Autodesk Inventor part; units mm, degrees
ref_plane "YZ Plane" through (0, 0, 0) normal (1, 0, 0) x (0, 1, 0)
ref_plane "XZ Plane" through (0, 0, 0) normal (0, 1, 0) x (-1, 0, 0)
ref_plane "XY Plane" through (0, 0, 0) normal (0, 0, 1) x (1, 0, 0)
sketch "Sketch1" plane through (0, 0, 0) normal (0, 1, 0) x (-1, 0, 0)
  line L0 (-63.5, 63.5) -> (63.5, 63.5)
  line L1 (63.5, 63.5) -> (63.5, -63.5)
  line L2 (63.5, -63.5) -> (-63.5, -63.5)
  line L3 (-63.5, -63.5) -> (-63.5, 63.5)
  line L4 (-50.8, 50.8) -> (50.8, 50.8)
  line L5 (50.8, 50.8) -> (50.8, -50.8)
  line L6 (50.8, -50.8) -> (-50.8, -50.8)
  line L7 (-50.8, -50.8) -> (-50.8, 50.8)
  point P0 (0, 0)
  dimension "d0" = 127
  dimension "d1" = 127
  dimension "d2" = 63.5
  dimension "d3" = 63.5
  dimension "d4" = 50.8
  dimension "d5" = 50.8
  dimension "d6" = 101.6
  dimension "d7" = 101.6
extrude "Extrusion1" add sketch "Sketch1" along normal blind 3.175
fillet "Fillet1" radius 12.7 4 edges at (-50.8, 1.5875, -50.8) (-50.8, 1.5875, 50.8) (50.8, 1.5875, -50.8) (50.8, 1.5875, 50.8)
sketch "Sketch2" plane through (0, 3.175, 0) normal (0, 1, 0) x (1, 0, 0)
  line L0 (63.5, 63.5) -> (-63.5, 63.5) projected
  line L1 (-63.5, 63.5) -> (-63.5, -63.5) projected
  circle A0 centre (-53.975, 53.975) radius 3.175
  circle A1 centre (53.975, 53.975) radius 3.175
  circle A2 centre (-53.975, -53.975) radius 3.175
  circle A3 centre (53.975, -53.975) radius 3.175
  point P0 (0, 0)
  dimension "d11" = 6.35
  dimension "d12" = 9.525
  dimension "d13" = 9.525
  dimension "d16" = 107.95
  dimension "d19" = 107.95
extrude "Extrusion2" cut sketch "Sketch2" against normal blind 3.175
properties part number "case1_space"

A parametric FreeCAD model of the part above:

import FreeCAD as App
import Part
import Sketcher
from FreeCAD import Vector
Q = App.Units.Quantity


def edges_at(feature, points):
    """Names of the edges that pass closest to the given points."""
    edges = feature.Shape.Edges
    near = lambda p: min(range(len(edges)), key=lambda i: edges[i].distToShape(Part.Vertex(*p))[0])
    return sorted({f"Edge{near(p) + 1}" for p in points})

doc = App.newDocument("Part")
params = doc.addObject("Spreadsheet::Sheet", "Params")
for row, (alias, value) in enumerate([
    ("sketch1_width", "5 in"),
    ("sketch1_width2", "4 in"),
    ("pad1_length", "0.125 in"),
    ("fillet_radius", "0.5 in"),
    ("sketch2_diameter", "0.25 in"),
    ("pocket1_length", "0.125 in"),
], start=1):
    params.set(f"A{row}", alias)
    params.set(f"B{row}", "=" + value)
    params.setAlias(f"B{row}", alias)

body = doc.addObject("PartDesign::Body", "Body")

sketch1 = doc.addObject("Sketcher::SketchObject", "Sketch")
body.addObject(sketch1)
sketch1.AttachmentSupport = (doc.XZ_Plane, [""])
sketch1.MapMode = "FlatFace"
sketch1.addGeometry([
    Part.LineSegment(Vector(-64, 64, 0), Vector(64, 64, 0)),
    Part.LineSegment(Vector(64, 64, 0), Vector(64, -64, 0)),
    Part.LineSegment(Vector(64, -64, 0), Vector(-64, -64, 0)),
    Part.LineSegment(Vector(-64, -64, 0), Vector(-64, 64, 0)),
    Part.LineSegment(Vector(51, -51, 0), Vector(51, 51, 0)),
    Part.LineSegment(Vector(51, 51, 0), Vector(-51, 51, 0)),
    Part.LineSegment(Vector(-51, 51, 0), Vector(-51, -51, 0)),
    Part.LineSegment(Vector(-51, -51, 0), Vector(51, -51, 0)),
], False)
sketch1.addConstraint([
    Sketcher.Constraint("Coincident", 0, 2, 1, 1),
    Sketcher.Constraint("Coincident", 1, 2, 2, 1),
    Sketcher.Constraint("Coincident", 2, 2, 3, 1),
    Sketcher.Constraint("Coincident", 3, 2, 0, 1),
    Sketcher.Constraint("Coincident", 4, 2, 5, 1),
    Sketcher.Constraint("Coincident", 5, 2, 6, 1),
    Sketcher.Constraint("Coincident", 6, 2, 7, 1),
    Sketcher.Constraint("Coincident", 7, 2, 4, 1),
    Sketcher.Constraint("Horizontal", 0),
    Sketcher.Constraint("Vertical", 1),
    Sketcher.Constraint("Horizontal", 2),
    Sketcher.Constraint("Vertical", 3),
    Sketcher.Constraint("Vertical", 4),
    Sketcher.Constraint("Horizontal", 5),
    Sketcher.Constraint("Vertical", 6),
    Sketcher.Constraint("Horizontal", 7),
    Sketcher.Constraint("Symmetric", 0, 2, 2, 2, -1, 1),
    Sketcher.Constraint("Symmetric", 4, 2, 6, 2, -1, 1),
    Sketcher.Constraint("Equal", 2, 1),
    Sketcher.Constraint("Equal", 7, 4),
    Sketcher.Constraint("DistanceX", 0, 1, 0, 2, Q("5 in")),
    Sketcher.Constraint("DistanceX", 5, 2, 5, 1, Q("4 in")),
])
sketch1.setExpression("Constraints[20]", "Params.sketch1_width")
sketch1.setExpression("Constraints[21]", "Params.sketch1_width2")
pad1 = doc.addObject("PartDesign::Pad", "Pad")
body.addObject(pad1)
pad1.Profile = sketch1
pad1.setExpression("Length", "Params.pad1_length")
pad1.Reversed = True
doc.recompute()

fillet = doc.addObject("PartDesign::Fillet", "Fillet")
body.addObject(fillet)
fillet.Base = (pad1, edges_at(pad1, [
    (-50.8, 1.587, -50.8),
    (-50.8, 1.587, 50.8),
    (50.8, 1.587, -50.8),
    (50.8, 1.587, 50.8),
]))
fillet.setExpression("Radius", "Params.fillet_radius")

sketch2 = doc.addObject("Sketcher::SketchObject", "Sketch001")
body.addObject(sketch2)
sketch2.AttachmentSupport = (doc.XZ_Plane, [""])
sketch2.MapMode = "FlatFace"
sketch2.AttachmentOffset = App.Placement(Vector(0, 0, -0.125 * 25.4), App.Rotation())
sketch2.addGeometry([
    Part.Circle(Vector(-54, -54, 0), Vector(0, 0, 1), 3.2),
    Part.Circle(Vector(54, -54, 0), Vector(0, 0, 1), 3.2),
    Part.Circle(Vector(-54, 54, 0), Vector(0, 0, 1), 3.2),
    Part.Circle(Vector(54, 54, 0), Vector(0, 0, 1), 3.2),
], False)
sketch2.addConstraint([
    Sketcher.Constraint("Equal", 0, 1),
    Sketcher.Constraint("Equal", 1, 2),
    Sketcher.Constraint("Equal", 2, 3),
    Sketcher.Constraint("Symmetric", 1, 3, 2, 3, -1, 1),
    Sketcher.Constraint("Symmetric", 0, 3, 3, 3, -1, 1),
    Sketcher.Constraint("Symmetric", 0, 3, 1, 3, -2),
    Sketcher.Constraint("Diameter", 0, Q("0.25 in")),
    Sketcher.Constraint("DistanceX", 0, 3, 1, 3, Q("4.25 in")),
    Sketcher.Constraint("DistanceY", 0, 3, 2, 3, Q("4.25 in")),
])
sketch2.setExpression("Constraints[6]", "Params.sketch2_diameter")
pocket1 = doc.addObject("PartDesign::Pocket", "Pocket")
body.addObject(pocket1)
pocket1.Profile = sketch2
pocket1.setExpression("Length", "Params.pocket1_length")
pocket1.Reversed = True

doc.recompute()
